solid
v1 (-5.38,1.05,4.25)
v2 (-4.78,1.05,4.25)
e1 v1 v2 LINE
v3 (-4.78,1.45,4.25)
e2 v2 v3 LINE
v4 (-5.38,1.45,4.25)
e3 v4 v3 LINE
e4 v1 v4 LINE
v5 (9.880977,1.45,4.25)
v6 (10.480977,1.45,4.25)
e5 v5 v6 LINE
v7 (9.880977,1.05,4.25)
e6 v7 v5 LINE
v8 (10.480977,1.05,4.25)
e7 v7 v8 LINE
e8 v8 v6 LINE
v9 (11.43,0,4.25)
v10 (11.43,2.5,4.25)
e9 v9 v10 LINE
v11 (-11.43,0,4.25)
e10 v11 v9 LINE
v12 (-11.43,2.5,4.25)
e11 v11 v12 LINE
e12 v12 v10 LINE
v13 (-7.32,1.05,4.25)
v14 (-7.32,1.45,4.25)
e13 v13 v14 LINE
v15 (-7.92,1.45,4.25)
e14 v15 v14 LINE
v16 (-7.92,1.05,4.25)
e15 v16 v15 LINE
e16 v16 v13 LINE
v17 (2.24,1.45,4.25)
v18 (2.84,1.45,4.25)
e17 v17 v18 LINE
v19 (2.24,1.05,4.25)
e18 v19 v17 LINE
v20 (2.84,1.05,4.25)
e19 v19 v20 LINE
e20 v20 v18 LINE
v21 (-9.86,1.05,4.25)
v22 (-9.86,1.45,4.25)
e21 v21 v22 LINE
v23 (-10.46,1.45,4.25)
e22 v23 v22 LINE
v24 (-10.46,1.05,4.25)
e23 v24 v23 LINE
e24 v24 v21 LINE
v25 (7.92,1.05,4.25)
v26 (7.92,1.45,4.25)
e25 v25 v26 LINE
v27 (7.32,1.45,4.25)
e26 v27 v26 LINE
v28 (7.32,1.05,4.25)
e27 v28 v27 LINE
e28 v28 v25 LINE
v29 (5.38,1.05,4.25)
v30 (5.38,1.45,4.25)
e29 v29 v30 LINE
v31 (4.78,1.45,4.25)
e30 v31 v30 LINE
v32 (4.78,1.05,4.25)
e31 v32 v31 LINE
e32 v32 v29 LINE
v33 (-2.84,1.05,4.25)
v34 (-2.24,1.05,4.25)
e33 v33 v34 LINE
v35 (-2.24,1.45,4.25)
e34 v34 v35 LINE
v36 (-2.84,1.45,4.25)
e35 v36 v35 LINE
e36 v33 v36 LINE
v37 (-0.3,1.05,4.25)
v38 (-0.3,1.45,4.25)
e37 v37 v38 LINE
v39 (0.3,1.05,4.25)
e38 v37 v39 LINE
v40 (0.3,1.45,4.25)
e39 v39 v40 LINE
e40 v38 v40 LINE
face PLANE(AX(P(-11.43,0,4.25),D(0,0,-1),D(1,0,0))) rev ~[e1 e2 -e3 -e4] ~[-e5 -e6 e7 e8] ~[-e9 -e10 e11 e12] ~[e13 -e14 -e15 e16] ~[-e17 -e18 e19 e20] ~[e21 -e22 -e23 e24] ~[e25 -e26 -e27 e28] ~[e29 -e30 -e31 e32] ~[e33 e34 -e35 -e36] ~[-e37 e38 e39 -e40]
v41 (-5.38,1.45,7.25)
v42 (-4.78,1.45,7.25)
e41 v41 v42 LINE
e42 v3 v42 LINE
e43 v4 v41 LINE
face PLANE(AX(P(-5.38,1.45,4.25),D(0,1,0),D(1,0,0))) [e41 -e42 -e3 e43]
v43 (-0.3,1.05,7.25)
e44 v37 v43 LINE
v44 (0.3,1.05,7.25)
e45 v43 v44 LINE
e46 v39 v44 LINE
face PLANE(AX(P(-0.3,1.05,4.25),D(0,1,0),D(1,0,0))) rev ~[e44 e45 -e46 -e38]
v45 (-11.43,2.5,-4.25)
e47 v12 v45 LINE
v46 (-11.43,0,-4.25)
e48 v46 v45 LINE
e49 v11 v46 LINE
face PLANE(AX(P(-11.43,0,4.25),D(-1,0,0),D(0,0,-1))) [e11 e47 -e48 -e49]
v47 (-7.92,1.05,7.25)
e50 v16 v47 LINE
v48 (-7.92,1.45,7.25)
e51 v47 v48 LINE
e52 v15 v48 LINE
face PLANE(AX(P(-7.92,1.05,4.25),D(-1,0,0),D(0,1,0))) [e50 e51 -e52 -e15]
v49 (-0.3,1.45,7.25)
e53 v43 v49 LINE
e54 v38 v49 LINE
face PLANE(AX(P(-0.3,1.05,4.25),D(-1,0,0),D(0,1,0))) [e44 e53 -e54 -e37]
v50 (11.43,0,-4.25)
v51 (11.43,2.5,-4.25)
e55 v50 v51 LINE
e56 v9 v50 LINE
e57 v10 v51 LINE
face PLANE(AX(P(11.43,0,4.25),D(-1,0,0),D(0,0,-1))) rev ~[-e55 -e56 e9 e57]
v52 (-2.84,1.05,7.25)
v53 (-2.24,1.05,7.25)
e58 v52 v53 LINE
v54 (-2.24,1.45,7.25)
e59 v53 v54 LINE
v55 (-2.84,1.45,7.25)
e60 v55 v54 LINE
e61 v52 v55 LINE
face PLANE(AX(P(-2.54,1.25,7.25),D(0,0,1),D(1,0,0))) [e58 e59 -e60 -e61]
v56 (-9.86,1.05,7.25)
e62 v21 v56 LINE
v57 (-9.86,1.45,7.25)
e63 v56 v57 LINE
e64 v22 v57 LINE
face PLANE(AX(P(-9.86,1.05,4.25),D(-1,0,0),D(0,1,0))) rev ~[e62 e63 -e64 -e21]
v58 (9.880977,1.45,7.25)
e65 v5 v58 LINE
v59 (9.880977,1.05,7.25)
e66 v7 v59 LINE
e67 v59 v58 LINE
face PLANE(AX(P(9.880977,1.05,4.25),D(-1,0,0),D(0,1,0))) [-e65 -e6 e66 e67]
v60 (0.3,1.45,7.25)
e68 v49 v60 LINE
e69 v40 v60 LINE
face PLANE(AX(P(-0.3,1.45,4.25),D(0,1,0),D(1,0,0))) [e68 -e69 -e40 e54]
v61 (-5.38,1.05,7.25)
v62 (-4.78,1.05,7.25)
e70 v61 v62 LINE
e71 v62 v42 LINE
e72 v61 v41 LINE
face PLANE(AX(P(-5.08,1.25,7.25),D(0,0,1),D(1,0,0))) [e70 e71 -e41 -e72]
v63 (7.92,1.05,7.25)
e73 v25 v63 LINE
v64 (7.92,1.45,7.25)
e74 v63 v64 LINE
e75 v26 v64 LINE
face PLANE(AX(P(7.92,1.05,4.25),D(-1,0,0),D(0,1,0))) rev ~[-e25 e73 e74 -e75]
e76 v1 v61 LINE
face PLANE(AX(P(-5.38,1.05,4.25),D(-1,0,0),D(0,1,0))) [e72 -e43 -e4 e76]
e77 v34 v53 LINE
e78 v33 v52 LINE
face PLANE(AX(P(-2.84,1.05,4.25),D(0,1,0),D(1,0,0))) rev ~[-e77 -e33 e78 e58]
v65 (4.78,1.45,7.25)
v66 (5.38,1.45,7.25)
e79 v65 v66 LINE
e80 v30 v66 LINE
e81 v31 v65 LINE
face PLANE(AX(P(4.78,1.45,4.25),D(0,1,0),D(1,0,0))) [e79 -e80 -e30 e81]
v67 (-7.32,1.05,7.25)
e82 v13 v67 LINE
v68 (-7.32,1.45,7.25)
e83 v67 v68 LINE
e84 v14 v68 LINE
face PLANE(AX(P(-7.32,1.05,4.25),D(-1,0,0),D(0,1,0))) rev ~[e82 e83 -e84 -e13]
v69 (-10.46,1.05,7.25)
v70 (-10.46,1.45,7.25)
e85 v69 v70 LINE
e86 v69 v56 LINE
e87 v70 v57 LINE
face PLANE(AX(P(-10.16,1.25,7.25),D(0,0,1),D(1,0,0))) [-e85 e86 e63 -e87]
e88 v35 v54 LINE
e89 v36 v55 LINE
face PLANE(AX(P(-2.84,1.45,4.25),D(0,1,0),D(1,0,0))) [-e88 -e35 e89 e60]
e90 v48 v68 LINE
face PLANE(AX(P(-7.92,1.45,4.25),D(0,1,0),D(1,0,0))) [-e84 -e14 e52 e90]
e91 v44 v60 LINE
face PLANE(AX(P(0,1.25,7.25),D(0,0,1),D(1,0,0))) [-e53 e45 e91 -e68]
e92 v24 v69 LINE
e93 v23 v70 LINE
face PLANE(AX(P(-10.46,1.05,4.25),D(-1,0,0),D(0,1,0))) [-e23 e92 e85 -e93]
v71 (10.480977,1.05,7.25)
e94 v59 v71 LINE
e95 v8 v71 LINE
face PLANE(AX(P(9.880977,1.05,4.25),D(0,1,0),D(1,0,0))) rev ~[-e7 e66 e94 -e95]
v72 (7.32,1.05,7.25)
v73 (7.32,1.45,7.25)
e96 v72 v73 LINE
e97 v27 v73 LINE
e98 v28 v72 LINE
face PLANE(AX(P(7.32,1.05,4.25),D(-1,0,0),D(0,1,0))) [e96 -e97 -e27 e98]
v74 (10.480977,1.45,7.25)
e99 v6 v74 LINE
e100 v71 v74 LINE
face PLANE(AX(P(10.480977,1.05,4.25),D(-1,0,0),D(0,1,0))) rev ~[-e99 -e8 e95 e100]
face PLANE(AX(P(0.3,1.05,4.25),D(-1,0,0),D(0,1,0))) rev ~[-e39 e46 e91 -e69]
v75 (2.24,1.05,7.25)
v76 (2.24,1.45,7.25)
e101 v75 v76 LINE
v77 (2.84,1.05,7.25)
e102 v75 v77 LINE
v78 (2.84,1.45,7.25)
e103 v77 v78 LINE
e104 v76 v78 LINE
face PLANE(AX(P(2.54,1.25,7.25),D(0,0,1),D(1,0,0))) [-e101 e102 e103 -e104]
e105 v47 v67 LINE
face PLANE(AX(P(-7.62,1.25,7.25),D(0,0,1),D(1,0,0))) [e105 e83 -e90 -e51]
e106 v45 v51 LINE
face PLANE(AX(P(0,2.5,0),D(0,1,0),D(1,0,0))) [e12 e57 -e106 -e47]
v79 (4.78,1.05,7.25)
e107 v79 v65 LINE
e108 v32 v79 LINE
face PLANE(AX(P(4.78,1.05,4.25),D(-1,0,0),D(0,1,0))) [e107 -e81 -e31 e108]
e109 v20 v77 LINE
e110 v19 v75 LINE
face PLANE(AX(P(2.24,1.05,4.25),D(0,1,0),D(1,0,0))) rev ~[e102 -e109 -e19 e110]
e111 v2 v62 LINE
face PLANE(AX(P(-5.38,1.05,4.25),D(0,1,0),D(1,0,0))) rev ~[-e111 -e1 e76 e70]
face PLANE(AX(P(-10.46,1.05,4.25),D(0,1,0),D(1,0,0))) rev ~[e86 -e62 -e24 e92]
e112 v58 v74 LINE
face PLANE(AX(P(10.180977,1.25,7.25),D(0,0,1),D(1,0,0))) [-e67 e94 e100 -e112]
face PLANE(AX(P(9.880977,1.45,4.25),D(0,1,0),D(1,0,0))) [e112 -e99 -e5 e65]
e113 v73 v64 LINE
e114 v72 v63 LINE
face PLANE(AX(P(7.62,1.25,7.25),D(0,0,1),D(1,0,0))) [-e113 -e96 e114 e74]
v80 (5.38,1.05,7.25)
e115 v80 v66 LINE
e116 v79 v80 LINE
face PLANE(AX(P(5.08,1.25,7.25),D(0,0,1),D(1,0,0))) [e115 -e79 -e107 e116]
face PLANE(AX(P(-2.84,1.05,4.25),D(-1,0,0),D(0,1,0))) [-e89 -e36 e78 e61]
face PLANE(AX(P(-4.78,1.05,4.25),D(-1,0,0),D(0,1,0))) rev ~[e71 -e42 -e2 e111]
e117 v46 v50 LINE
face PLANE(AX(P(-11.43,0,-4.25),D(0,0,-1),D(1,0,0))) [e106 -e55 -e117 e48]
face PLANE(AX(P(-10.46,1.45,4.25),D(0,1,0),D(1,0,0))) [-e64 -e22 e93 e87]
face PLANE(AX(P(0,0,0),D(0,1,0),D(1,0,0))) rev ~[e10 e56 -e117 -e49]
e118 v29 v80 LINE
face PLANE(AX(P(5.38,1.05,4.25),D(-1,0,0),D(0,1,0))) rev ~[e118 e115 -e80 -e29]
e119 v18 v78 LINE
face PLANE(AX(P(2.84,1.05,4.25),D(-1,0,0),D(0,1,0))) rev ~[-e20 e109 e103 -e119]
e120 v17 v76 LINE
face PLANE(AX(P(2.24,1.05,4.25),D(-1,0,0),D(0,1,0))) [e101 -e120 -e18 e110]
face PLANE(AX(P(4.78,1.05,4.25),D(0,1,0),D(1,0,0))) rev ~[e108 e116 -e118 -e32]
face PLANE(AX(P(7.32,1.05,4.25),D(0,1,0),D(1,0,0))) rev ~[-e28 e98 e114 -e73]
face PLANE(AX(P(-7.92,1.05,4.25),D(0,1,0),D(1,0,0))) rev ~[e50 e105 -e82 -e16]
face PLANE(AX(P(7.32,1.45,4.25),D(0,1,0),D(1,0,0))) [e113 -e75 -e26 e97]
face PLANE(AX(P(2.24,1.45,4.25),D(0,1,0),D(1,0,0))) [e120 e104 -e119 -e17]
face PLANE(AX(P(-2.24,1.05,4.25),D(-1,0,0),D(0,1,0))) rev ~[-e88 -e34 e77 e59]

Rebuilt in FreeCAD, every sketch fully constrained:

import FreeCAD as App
import Part
import Sketcher
Q = App.Units.Quantity

doc = App.newDocument("Part")
body = doc.addObject("PartDesign::Body", "Body")

sketch1 = body.newObject("Sketcher::SketchObject", "Sketch")
sketch1.AttachmentSupport = (doc.getObject("XZ_Plane"), [""])
sketch1.MapMode = "FlatFace"
sketch1.addGeometry([
    Part.LineSegment(App.Vector(-11, -4, 0), App.Vector(-11, 4, 0)),
    Part.LineSegment(App.Vector(-11, 4, 0), App.Vector(11, 4, 0)),
    Part.LineSegment(App.Vector(11, 4, 0), App.Vector(11, -4, 0)),
    Part.LineSegment(App.Vector(11, -4, 0), App.Vector(-11, -4, 0)),
], False)
sketch1.addConstraint([
    Sketcher.Constraint("Coincident", 0, 2, 1, 1),
    Sketcher.Constraint("Coincident", 1, 2, 2, 1),
    Sketcher.Constraint("Coincident", 2, 2, 3, 1),
    Sketcher.Constraint("Coincident", 3, 2, 0, 1),
    Sketcher.Constraint("Vertical", 0),
    Sketcher.Constraint("Horizontal", 1),
    Sketcher.Constraint("Vertical", 2),
    Sketcher.Constraint("Horizontal", 3),
    Sketcher.Constraint("Symmetric", 0, 2, 2, 2, -1, 1),
    Sketcher.Constraint("DistanceY", 0, 1, 0, 2, Q("8.5 mm")),
    Sketcher.Constraint("DistanceX", 1, 1, 1, 2, Q("22.86 mm")),
])
pad1 = body.newObject("PartDesign::Pad", "Pad")
pad1.Profile = sketch1
pad1.Length = 2.5
pad1.Reversed = True

sketch2 = body.newObject("Sketcher::SketchObject", "Sketch001")
sketch2.AttachmentSupport = (doc.getObject("XY_Plane"), [""])
sketch2.MapMode = "FlatFace"
sketch2.AttachmentOffset = App.Placement(App.Vector(0, 0, 4.25), App.Rotation())
sketch2.addGeometry([
    Part.LineSegment(App.Vector(-7.92, 1.45, 0), App.Vector(-7.92, 1.05, 0)),
    Part.LineSegment(App.Vector(-7.92, 1.05, 0), App.Vector(-7.32, 1.05, 0)),
    Part.LineSegment(App.Vector(-7.32, 1.05, 0), App.Vector(-7.32, 1.45, 0)),
    Part.LineSegment(App.Vector(-7.32, 1.45, 0), App.Vector(-7.92, 1.45, 0)),
    Part.LineSegment(App.Vector(-10.46, 1.45, 0), App.Vector(-10.46, 1.05, 0)),
    Part.LineSegment(App.Vector(-10.46, 1.05, 0), App.Vector(-9.86, 1.05, 0)),
    Part.LineSegment(App.Vector(-9.86, 1.05, 0), App.Vector(-9.86, 1.45, 0)),
    Part.LineSegment(App.Vector(-9.86, 1.45, 0), App.Vector(-10.46, 1.45, 0)),
    Part.LineSegment(App.Vector(-5.38, 1.45, 0), App.Vector(-5.38, 1.05, 0)),
    Part.LineSegment(App.Vector(-5.38, 1.05, 0), App.Vector(-4.78, 1.05, 0)),
    Part.LineSegment(App.Vector(-4.78, 1.05, 0), App.Vector(-4.78, 1.45, 0)),
    Part.LineSegment(App.Vector(-4.78, 1.45, 0), App.Vector(-5.38, 1.45, 0)),
    Part.LineSegment(App.Vector(-2.84, 1.45, 0), App.Vector(-2.84, 1.05, 0)),
    Part.LineSegment(App.Vector(-2.84, 1.05, 0), App.Vector(-2.24, 1.05, 0)),
    Part.LineSegment(App.Vector(-2.24, 1.05, 0), App.Vector(-2.24, 1.45, 0)),
    Part.LineSegment(App.Vector(-2.24, 1.45, 0), App.Vector(-2.84, 1.45, 0)),
    Part.LineSegment(App.Vector(-0.3, 1.45, 0), App.Vector(-0.3, 1.05, 0)),
    Part.LineSegment(App.Vector(-0.3, 1.05, 0), App.Vector(0.3, 1.05, 0)),
    Part.LineSegment(App.Vector(0.3, 1.05, 0), App.Vector(0.3, 1.45, 0)),
    Part.LineSegment(App.Vector(0.3, 1.45, 0), App.Vector(-0.3, 1.45, 0)),
    Part.LineSegment(App.Vector(2.24, 1.45, 0), App.Vector(2.24, 1.05, 0)),
    Part.LineSegment(App.Vector(2.24, 1.05, 0), App.Vector(2.84, 1.05, 0)),
    Part.LineSegment(App.Vector(2.84, 1.05, 0), App.Vector(2.84, 1.45, 0)),
    Part.LineSegment(App.Vector(2.84, 1.45, 0), App.Vector(2.24, 1.45, 0)),
    Part.LineSegment(App.Vector(4.78, 1.45, 0), App.Vector(4.78, 1.05, 0)),
    Part.LineSegment(App.Vector(4.78, 1.05, 0), App.Vector(5.38, 1.05, 0)),
    Part.LineSegment(App.Vector(5.38, 1.05, 0), App.Vector(5.38, 1.45, 0)),
    Part.LineSegment(App.Vector(5.38, 1.45, 0), App.Vector(4.78, 1.45, 0)),
    Part.LineSegment(App.Vector(7.32, 1.45, 0), App.Vector(7.32, 1.05, 0)),
    Part.LineSegment(App.Vector(7.32, 1.05, 0), App.Vector(7.92, 1.05, 0)),
    Part.LineSegment(App.Vector(7.92, 1.05, 0), App.Vector(7.92, 1.45, 0)),
    Part.LineSegment(App.Vector(7.92, 1.45, 0), App.Vector(7.32, 1.45, 0)),
    Part.LineSegment(App.Vector(9.88, 1.45, 0), App.Vector(9.88, 1.05, 0)),
    Part.LineSegment(App.Vector(9.88, 1.05, 0), App.Vector(10.48, 1.05, 0)),
    Part.LineSegment(App.Vector(10.48, 1.05, 0), App.Vector(10.48, 1.45, 0)),
    Part.LineSegment(App.Vector(10.48, 1.45, 0), App.Vector(9.88, 1.45, 0)),
], False)
sketch2.addConstraint([
    Sketcher.Constraint("Coincident", 0, 2, 1, 1),
    Sketcher.Constraint("Coincident", 1, 2, 2, 1),
    Sketcher.Constraint("Coincident", 2, 2, 3, 1),
    Sketcher.Constraint("Coincident", 3, 2, 0, 1),
    Sketcher.Constraint("Coincident", 4, 2, 5, 1),
    Sketcher.Constraint("Coincident", 5, 2, 6, 1),
    Sketcher.Constraint("Coincident", 6, 2, 7, 1),
    Sketcher.Constraint("Coincident", 7, 2, 4, 1),
    Sketcher.Constraint("Coincident", 8, 2, 9, 1),
    Sketcher.Constraint("Coincident", 9, 2, 10, 1),
    Sketcher.Constraint("Coincident", 10, 2, 11, 1),
    Sketcher.Constraint("Coincident", 11, 2, 8, 1),
    Sketcher.Constraint("Coincident", 12, 2, 13, 1),
    Sketcher.Constraint("Coincident", 13, 2, 14, 1),
    Sketcher.Constraint("Coincident", 14, 2, 15, 1),
    Sketcher.Constraint("Coincident", 15, 2, 12, 1),
    Sketcher.Constraint("Coincident", 16, 2, 17, 1),
    Sketcher.Constraint("Coincident", 17, 2, 18, 1),
    Sketcher.Constraint("Coincident", 18, 2, 19, 1),
    Sketcher.Constraint("Coincident", 19, 2, 16, 1),
    Sketcher.Constraint("Coincident", 20, 2, 21, 1),
    Sketcher.Constraint("Coincident", 21, 2, 22, 1),
    Sketcher.Constraint("Coincident", 22, 2, 23, 1),
    Sketcher.Constraint("Coincident", 23, 2, 20, 1),
    Sketcher.Constraint("Coincident", 24, 2, 25, 1),
    Sketcher.Constraint("Coincident", 25, 2, 26, 1),
    Sketcher.Constraint("Coincident", 26, 2, 27, 1),
    Sketcher.Constraint("Coincident", 27, 2, 24, 1),
    Sketcher.Constraint("Coincident", 28, 2, 29, 1),
    Sketcher.Constraint("Coincident", 29, 2, 30, 1),
    Sketcher.Constraint("Coincident", 30, 2, 31, 1),
    Sketcher.Constraint("Coincident", 31, 2, 28, 1),
    Sketcher.Constraint("Coincident", 32, 2, 33, 1),
    Sketcher.Constraint("Coincident", 33, 2, 34, 1),
    Sketcher.Constraint("Coincident", 34, 2, 35, 1),
    Sketcher.Constraint("Coincident", 35, 2, 32, 1),
    Sketcher.Constraint("Vertical", 0),
    Sketcher.Constraint("Horizontal", 1),
    Sketcher.Constraint("Vertical", 2),
    Sketcher.Constraint("Horizontal", 3),
    Sketcher.Constraint("Vertical", 4),
    Sketcher.Constraint("Horizontal", 5),
    Sketcher.Constraint("Vertical", 6),
    Sketcher.Constraint("Horizontal", 7),
    Sketcher.Constraint("Vertical", 8),
    Sketcher.Constraint("Horizontal", 9),
    Sketcher.Constraint("Vertical", 10),
    Sketcher.Constraint("Horizontal", 11),
    Sketcher.Constraint("Vertical", 12),
    Sketcher.Constraint("Horizontal", 13),
    Sketcher.Constraint("Vertical", 14),
    Sketcher.Constraint("Horizontal", 15),
    Sketcher.Constraint("Vertical", 16),
    Sketcher.Constraint("Horizontal", 17),
    Sketcher.Constraint("Vertical", 18),
    Sketcher.Constraint("Horizontal", 19),
    Sketcher.Constraint("Vertical", 20),
    Sketcher.Constraint("Horizontal", 21),
    Sketcher.Constraint("Vertical", 22),
    Sketcher.Constraint("Horizontal", 23),
    Sketcher.Constraint("Vertical", 24),
    Sketcher.Constraint("Horizontal", 25),
    Sketcher.Constraint("Vertical", 26),
    Sketcher.Constraint("Horizontal", 27),
    Sketcher.Constraint("Vertical", 28),
    Sketcher.Constraint("Horizontal", 29),
    Sketcher.Constraint("Vertical", 30),
    Sketcher.Constraint("Horizontal", 31),
    Sketcher.Constraint("Vertical", 32),
    Sketcher.Constraint("Horizontal", 33),
    Sketcher.Constraint("Vertical", 34),
    Sketcher.Constraint("Horizontal", 35),
    Sketcher.Constraint("Symmetric", 13, 2, 20, 2, -2),
    Sketcher.Constraint("Symmetric", 15, 2, 22, 2, -2),
    Sketcher.Constraint("Symmetric", 9, 2, 24, 2, -2),
    Sketcher.Constraint("Symmetric", 11, 2, 26, 2, -2),
    Sketcher.Constraint("Symmetric", 1, 2, 28, 2, -2),
    Sketcher.Constraint("Symmetric", 3, 2, 30, 2, -2),
    Sketcher.Constraint("Horizontal", 1, 2, 4, 2),
    Sketcher.Constraint("Horizontal", 3, 2, 6, 2),
    Sketcher.Constraint("Horizontal", 5, 2, 8, 2),
    Sketcher.Constraint("Horizontal", 7, 2, 10, 2),
    Sketcher.Constraint("Horizontal", 9, 2, 12, 2),
    Sketcher.Constraint("Horizontal", 11, 2, 14, 2),
    Sketcher.Constraint("Horizontal", 13, 2, 16, 2),
    Sketcher.Constraint("Horizontal", 15, 2, 18, 2),
    Sketcher.Constraint("Horizontal", 29, 2, 32, 2),
    Sketcher.Constraint("Horizontal", 31, 2, 34, 2),
    Sketcher.Constraint("Equal", 3, 5),
    Sketcher.Constraint("Equal", 7, 9),
    Sketcher.Constraint("Equal", 11, 13),
    Sketcher.Constraint("Equal", 15, 17),
    Sketcher.Constraint("Equal", 31, 33),
    Sketcher.Constraint("DistanceX", 1, 1, 1, 2, Q("0.6 mm")),
    Sketcher.Constraint("DistanceY", 0, 2, 0, 1, Q("0.4 mm")),
    Sketcher.Constraint("DistanceX", 16, 2, -1, 1, Q("0.3 mm")),
    Sketcher.Constraint("DistanceX", 0, 2, -1, 1, Q("7.92 mm")),
    Sketcher.Constraint("DistanceY", -1, 1, 0, 2, Q("1.05 mm")),
    Sketcher.Constraint("DistanceX", 4, 2, -1, 1, Q("10.46 mm")),
    Sketcher.Constraint("DistanceX", 8, 2, -1, 1, Q("5.38 mm")),
    Sketcher.Constraint("DistanceX", 12, 2, -1, 1, Q("2.84 mm")),
    Sketcher.Constraint("DistanceX", -1, 1, 32, 2, Q("9.880977 mm")),
])
pad2 = body.newObject("PartDesign::Pad", "Pad001")
pad2.Profile = sketch2
pad2.Length = 3

doc.recompute()
